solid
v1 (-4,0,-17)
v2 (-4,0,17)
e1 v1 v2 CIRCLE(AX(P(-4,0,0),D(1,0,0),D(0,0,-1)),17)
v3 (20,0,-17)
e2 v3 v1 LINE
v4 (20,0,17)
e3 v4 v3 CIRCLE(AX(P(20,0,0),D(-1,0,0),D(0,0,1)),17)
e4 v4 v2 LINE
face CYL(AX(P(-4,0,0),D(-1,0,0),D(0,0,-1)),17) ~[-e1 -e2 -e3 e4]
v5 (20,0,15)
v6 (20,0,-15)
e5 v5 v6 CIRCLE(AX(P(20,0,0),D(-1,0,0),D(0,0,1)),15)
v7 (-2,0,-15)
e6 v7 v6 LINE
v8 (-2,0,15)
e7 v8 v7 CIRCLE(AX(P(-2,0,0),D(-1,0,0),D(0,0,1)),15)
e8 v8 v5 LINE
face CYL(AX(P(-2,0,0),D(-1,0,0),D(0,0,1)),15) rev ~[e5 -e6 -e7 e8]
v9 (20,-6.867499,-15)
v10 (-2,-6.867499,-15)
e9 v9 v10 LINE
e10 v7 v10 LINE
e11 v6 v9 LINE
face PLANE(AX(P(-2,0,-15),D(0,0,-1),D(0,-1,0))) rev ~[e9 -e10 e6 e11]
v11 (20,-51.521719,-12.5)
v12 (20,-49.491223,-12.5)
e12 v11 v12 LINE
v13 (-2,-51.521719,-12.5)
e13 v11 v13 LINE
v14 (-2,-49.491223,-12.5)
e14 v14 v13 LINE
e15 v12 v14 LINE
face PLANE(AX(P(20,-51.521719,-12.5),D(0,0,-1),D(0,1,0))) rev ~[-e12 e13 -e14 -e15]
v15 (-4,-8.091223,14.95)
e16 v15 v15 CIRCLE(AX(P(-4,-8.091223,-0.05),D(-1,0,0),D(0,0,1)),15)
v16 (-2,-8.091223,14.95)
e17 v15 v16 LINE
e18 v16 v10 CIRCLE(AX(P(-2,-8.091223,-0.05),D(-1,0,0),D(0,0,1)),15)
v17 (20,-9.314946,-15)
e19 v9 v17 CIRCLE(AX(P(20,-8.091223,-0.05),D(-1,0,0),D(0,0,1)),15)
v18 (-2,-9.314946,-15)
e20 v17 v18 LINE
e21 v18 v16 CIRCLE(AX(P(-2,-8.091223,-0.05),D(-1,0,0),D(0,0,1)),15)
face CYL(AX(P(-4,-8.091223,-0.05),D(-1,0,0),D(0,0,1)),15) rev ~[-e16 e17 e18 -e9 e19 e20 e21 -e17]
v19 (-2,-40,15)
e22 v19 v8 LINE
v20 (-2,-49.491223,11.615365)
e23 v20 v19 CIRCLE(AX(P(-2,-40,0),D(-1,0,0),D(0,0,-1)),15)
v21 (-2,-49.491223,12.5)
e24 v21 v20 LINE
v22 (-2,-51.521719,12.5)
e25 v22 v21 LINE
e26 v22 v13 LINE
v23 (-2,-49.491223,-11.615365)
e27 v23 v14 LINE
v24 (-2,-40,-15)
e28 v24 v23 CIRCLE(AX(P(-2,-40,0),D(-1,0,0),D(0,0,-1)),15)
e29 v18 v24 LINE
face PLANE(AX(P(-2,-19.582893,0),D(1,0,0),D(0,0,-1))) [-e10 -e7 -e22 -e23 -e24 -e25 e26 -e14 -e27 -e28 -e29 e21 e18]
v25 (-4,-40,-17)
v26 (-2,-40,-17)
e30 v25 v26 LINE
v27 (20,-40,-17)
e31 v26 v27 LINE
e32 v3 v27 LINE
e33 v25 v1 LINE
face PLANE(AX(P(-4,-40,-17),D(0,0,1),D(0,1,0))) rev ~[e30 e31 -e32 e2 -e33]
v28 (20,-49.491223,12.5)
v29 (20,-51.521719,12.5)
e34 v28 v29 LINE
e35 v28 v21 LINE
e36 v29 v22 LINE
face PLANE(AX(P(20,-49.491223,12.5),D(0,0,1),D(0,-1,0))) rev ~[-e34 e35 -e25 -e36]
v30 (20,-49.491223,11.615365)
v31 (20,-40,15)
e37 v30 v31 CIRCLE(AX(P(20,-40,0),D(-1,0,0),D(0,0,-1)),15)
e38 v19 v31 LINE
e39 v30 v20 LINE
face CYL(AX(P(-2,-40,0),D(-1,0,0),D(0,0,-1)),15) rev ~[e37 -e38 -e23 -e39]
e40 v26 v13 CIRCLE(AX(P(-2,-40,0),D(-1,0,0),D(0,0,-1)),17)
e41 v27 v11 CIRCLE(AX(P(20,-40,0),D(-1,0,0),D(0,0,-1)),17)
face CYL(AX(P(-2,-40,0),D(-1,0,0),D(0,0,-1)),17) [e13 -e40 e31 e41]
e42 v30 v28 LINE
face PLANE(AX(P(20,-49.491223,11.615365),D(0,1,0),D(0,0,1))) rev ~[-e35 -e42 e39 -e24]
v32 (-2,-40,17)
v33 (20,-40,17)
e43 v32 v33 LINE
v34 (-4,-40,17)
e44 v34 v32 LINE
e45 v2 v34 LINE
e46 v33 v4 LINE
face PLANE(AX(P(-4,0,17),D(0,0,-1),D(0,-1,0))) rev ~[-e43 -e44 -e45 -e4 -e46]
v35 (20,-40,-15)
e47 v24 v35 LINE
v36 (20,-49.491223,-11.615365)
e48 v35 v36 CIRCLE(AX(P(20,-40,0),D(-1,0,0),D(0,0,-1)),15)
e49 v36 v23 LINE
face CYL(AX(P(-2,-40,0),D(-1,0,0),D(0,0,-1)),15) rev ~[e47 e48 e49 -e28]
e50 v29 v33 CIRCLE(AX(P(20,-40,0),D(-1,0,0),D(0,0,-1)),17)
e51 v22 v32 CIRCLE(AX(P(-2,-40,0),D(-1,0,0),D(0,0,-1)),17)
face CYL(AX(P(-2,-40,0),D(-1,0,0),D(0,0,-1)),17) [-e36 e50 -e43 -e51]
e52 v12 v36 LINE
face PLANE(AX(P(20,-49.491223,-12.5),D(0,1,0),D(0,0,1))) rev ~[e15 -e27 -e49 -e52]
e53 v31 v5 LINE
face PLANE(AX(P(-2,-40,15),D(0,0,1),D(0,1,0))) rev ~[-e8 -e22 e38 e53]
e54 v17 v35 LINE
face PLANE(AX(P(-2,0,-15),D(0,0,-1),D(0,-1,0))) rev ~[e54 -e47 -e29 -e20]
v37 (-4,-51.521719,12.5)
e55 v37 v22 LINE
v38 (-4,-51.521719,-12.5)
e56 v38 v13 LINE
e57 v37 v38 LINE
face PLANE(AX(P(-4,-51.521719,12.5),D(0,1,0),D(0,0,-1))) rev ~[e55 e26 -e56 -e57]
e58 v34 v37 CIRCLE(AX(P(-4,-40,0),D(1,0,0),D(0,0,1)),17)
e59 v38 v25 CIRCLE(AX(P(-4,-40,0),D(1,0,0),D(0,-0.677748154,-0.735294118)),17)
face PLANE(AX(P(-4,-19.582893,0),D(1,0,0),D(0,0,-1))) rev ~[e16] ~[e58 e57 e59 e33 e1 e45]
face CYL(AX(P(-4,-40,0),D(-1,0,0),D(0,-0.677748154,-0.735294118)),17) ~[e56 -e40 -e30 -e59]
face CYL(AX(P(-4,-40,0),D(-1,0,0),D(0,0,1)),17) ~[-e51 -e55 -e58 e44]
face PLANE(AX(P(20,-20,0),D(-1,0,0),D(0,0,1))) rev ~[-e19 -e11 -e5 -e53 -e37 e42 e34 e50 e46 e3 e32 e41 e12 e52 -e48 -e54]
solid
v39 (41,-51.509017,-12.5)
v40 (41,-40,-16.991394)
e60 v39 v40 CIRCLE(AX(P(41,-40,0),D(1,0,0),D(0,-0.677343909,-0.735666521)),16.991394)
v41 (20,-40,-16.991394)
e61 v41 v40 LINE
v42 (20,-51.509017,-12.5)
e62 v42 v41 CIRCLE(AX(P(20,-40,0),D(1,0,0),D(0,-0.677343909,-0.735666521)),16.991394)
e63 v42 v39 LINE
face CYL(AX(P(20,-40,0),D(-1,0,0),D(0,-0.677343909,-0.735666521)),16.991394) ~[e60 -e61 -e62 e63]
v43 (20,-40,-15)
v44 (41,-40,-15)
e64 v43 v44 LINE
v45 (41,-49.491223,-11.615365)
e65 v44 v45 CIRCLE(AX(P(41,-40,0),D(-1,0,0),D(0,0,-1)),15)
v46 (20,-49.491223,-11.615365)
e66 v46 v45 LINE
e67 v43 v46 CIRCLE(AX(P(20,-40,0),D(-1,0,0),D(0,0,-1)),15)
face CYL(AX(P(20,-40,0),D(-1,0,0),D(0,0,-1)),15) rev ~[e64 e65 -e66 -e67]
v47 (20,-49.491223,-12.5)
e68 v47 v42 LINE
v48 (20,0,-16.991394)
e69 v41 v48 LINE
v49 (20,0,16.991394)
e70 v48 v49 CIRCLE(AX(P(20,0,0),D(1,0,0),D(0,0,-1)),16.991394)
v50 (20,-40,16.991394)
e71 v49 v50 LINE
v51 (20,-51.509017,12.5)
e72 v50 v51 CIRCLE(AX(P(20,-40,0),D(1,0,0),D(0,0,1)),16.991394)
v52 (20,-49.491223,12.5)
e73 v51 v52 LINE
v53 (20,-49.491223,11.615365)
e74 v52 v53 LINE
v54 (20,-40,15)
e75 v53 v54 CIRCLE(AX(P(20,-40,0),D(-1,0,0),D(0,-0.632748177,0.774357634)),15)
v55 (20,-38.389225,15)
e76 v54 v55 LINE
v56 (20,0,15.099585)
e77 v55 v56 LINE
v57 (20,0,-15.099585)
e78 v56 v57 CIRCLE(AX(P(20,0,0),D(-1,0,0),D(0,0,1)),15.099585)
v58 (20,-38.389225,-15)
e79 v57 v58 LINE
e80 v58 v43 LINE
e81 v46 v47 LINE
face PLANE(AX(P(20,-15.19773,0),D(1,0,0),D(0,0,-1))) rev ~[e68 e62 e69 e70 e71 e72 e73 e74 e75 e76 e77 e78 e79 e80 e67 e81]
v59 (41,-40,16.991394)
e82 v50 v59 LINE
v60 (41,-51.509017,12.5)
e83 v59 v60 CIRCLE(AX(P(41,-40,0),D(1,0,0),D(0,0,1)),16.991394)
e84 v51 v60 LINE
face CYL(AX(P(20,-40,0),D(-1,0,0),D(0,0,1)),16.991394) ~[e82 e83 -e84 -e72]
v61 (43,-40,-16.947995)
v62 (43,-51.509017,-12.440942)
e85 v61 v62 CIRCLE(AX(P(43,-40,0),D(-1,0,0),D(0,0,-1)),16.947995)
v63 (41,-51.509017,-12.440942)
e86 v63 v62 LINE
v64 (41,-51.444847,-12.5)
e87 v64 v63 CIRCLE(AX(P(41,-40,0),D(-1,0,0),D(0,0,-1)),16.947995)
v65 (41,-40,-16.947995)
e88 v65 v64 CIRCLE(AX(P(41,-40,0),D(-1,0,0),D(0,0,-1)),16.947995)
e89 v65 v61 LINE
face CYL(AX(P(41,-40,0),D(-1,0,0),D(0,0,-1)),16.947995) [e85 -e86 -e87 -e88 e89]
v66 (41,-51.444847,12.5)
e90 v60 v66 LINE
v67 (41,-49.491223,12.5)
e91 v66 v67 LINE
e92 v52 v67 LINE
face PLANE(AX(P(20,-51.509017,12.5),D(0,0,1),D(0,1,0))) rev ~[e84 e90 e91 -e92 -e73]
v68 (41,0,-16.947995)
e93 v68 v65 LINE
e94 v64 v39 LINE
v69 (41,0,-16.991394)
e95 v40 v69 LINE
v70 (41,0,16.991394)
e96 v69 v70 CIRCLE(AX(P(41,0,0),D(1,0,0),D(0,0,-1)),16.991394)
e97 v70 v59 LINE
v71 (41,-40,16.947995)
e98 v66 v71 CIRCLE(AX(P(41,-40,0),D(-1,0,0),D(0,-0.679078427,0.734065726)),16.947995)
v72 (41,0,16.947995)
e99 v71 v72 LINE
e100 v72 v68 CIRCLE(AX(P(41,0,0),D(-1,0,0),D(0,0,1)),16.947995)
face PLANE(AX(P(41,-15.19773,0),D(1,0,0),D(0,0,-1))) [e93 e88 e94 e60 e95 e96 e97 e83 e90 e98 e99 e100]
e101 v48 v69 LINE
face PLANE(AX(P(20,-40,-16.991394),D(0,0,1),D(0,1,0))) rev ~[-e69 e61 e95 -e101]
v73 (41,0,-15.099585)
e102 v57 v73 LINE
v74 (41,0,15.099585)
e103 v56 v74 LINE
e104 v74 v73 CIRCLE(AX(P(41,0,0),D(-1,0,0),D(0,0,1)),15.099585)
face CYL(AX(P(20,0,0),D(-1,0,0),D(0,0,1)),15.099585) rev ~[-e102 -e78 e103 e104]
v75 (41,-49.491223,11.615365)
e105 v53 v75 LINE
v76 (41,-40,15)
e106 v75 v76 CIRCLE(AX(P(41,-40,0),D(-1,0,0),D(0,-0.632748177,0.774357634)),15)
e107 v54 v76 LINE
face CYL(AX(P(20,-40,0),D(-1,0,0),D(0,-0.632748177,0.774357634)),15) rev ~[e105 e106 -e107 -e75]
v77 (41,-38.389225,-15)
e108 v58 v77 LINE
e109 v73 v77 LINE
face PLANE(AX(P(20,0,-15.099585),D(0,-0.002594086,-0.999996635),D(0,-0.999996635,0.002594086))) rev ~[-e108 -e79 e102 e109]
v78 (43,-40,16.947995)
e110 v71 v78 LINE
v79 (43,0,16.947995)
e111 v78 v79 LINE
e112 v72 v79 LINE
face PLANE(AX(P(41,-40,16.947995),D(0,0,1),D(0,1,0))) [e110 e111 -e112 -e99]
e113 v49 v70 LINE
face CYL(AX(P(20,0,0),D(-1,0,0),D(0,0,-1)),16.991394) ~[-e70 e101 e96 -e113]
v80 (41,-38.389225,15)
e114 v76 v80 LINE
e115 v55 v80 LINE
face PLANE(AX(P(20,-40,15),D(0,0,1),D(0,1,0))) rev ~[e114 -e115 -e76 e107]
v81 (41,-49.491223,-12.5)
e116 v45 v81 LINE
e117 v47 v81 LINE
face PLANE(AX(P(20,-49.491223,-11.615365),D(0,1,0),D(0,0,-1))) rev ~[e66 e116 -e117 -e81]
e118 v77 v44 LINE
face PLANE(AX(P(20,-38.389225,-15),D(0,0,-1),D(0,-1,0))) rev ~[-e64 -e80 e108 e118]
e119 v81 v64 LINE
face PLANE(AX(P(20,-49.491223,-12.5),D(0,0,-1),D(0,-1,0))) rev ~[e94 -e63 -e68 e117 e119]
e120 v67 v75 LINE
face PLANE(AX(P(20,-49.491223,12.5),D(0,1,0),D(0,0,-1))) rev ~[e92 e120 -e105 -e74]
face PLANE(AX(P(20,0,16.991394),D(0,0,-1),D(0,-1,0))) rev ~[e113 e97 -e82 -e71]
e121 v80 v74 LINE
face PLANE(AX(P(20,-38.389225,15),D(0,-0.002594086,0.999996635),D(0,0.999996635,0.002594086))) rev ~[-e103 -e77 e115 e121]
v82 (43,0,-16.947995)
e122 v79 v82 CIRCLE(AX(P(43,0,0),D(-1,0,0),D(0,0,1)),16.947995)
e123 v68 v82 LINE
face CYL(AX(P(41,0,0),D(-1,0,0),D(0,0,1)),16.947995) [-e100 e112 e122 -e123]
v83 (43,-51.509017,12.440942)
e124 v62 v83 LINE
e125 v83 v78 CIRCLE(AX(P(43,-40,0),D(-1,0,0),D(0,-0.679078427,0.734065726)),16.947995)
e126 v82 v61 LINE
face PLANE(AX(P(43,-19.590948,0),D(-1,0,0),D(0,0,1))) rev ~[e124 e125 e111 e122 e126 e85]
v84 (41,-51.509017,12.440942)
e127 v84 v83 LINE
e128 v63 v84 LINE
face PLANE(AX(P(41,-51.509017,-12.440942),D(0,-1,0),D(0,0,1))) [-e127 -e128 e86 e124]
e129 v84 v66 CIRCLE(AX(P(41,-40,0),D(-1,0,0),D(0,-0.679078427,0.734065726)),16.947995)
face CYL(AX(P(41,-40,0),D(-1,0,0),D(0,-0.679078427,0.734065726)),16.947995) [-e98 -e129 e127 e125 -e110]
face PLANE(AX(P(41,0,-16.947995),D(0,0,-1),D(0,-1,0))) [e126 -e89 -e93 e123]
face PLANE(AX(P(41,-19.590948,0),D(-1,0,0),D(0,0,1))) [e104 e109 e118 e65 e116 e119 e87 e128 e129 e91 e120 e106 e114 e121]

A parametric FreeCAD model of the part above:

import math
import FreeCAD as App
import Part
import Sketcher

V = App.Vector

doc = App.newDocument("Part")
body = doc.addObject("PartDesign::Body", "Body")

sketch1 = body.newObject("Sketcher::SketchObject", "Sketch")
sketch1.AttachmentSupport = (doc.getObject("YZ_Plane"), [""])
sketch1.MapMode = "FlatFace"
sketch1.addGeometry([
    Part.LineSegment(V(-40, -17, 0), V(0, -17, 0)),
    Part.ArcOfCircle(Part.Circle(V(0, 0, 0), V(0, 0, 1), 17), math.radians(-90), math.radians(90)),
    Part.LineSegment(V(0, 17, 0), V(-40, 17, 0)),
    Part.ArcOfCircle(Part.Circle(V(-40, 0, 0), V(0, 0, 1), 17), math.radians(90), math.radians(270)),
    Part.LineSegment(V(0, -15, 0), V(-40, -15, 0)),
    Part.ArcOfCircle(Part.Circle(V(-40, 0, 0), V(0, 0, 1), 15), math.radians(90), math.radians(270)),
    Part.LineSegment(V(-40, 15, 0), V(0, 15, 0)),
    Part.ArcOfCircle(Part.Circle(V(0, 0, 0), V(0, 0, 1), 15), math.radians(-90), math.radians(90)),
], False)
sketch1.addConstraint([
    Sketcher.Constraint("Tangent", 0, 2, 1, 1),
    Sketcher.Constraint("Tangent", 1, 2, 2, 1),
    Sketcher.Constraint("Tangent", 2, 2, 3, 1),
    Sketcher.Constraint("Tangent", 3, 2, 0, 1),
    Sketcher.Constraint("Tangent", 4, 2, 5, 2),
    Sketcher.Constraint("Tangent", 5, 1, 6, 1),
    Sketcher.Constraint("Tangent", 6, 2, 7, 2),
    Sketcher.Constraint("Tangent", 7, 1, 4, 1),
    Sketcher.Constraint("Horizontal", 0),
    Sketcher.Constraint("Horizontal", 2),
    Sketcher.Constraint("Horizontal", 4),
    Sketcher.Constraint("Horizontal", 6),
    Sketcher.Constraint("Coincident", 1, 3, -1, 1),
    Sketcher.Constraint("Coincident", 7, 3, -1, 1),
    Sketcher.Constraint("Vertical", 5, 3, 2, 2),
    Sketcher.Constraint("Radius", 1, 17.0),
    Sketcher.Constraint("Radius", 5, 15.0),
    Sketcher.Constraint("DistanceX", 0, 1, 0, 2, 40.0),
])
pad1 = body.newObject("PartDesign::Pad", "Pad")
pad1.Profile = sketch1
pad1.Type = "TwoLengths"
pad1.Length = 20
pad1.Length2 = 2

sketch2 = body.newObject("Sketcher::SketchObject", "Sketch001")
sketch2.AttachmentSupport = (doc.getObject("YZ_Plane"), [""])
sketch2.MapMode = "FlatFace"
sketch2.AttachmentOffset = App.Placement(V(0, 0, 20), App.Rotation())
sketch2.addGeometry([
    Part.ArcOfCircle(Part.Circle(V(-40, 0, 0), V(0, 0, 1), 15), math.radians(129.25), math.radians(140)),
    Part.LineSegment(V(-49.5, 11.6, 0), V(-49.5, 12.5, 0)),
    Part.LineSegment(V(-49.5, 12.5, 0), V(-51.5, 12.5, 0)),
    Part.ArcOfCircle(Part.Circle(V(-40, 0, 0), V(0, 0, 1), 17), math.radians(133), math.radians(227)),
    Part.LineSegment(V(-51.5, -12.5, 0), V(-49.5, -12.5, 0)),
    Part.LineSegment(V(-49.5, -12.5, 0), V(-49.5, -11.6, 0)),
    Part.ArcOfCircle(Part.Circle(V(-40, 0, 0), V(0, 0, 1), 15), math.radians(140), math.radians(231)),
], False)
sketch2.addConstraint([
    Sketcher.Constraint("Coincident", 0, 1, 1, 1),
    Sketcher.Constraint("Coincident", 1, 2, 2, 1),
    Sketcher.Constraint("Coincident", 2, 2, 3, 1),
    Sketcher.Constraint("Coincident", 3, 2, 4, 1),
    Sketcher.Constraint("Coincident", 4, 2, 5, 1),
    Sketcher.Constraint("Coincident", 5, 2, 6, 2),
    Sketcher.Constraint("Tangent", 6, 1, 0, 2),
    Sketcher.Constraint("Vertical", 1),
    Sketcher.Constraint("Horizontal", 2),
    Sketcher.Constraint("Horizontal", 4),
    Sketcher.Constraint("Vertical", 5),
    Sketcher.Constraint("Coincident", 3, 3, 0, 3),
    Sketcher.Constraint("Equal", 0, 6),
    Sketcher.Constraint("Symmetric", 2, 2, 3, 2, -1),
    Sketcher.Constraint("Vertical", 1, 2, 4, 2),
    Sketcher.Constraint("Radius", 0, 15.0),
    Sketcher.Constraint("Radius", 3, 17.0),
    Sketcher.Constraint("DistanceX", 0, 3, -1, 1, 40.0),
    Sketcher.Constraint("DistanceY", 3, 2, 2, 2, 25.0),
    Sketcher.Constraint("DistanceX", 6, 1, 0, 1, 2.0),
    Sketcher.Constraint("DistanceX", 2, 2, 2, 1, 2.030496),
])
pocket1 = body.newObject("PartDesign::Pocket", "Pocket")
pocket1.Profile = sketch2
pocket1.Type = "ThroughAll"

sketch3 = body.newObject("Sketcher::SketchObject", "Sketch002")
sketch3.AttachmentSupport = (doc.getObject("YZ_Plane"), [""])
sketch3.MapMode = "FlatFace"
sketch3.AttachmentOffset = App.Placement(V(0, 0, -4), App.Rotation())
sketch3.addGeometry([
    Part.LineSegment(V(-40, 17, 0), V(0, 17, 0)),
    Part.ArcOfCircle(Part.Circle(V(0, 0, 0), V(0, 0, 1), 17), math.radians(-90), math.radians(90)),
    Part.LineSegment(V(0, -17, 0), V(-40, -17, 0)),
    Part.ArcOfCircle(Part.Circle(V(-40, 0, 0), V(0, 0, 1), 17), math.radians(-133), math.radians(-90)),
    Part.LineSegment(V(-52, -12, 0), V(-52, 12, 0)),
    Part.ArcOfCircle(Part.Circle(V(-40, 0, 0), V(0, 0, 1), 17), math.radians(90), math.radians(133)),
], False)
sketch3.addConstraint([
    Sketcher.Constraint("Tangent", 0, 2, 1, 2),
    Sketcher.Constraint("Tangent", 1, 1, 2, 1),
    Sketcher.Constraint("Tangent", 2, 2, 3, 2),
    Sketcher.Constraint("Coincident", 3, 1, 4, 1),
    Sketcher.Constraint("Coincident", 4, 2, 5, 2),
    Sketcher.Constraint("Tangent", 5, 1, 0, 1),
    Sketcher.Constraint("Horizontal", 0),
    Sketcher.Constraint("Horizontal", 2),
    Sketcher.Constraint("Vertical", 4),
    Sketcher.Constraint("Coincident", 1, 3, -1, 1),
    Sketcher.Constraint("Coincident", 5, 3, 3, 3),
    Sketcher.Constraint("Equal", 1, 3),
    Sketcher.Constraint("Radius", 1, 17.0),
    Sketcher.Constraint("DistanceX", 0, 1, 0, 2, 40.0),
    Sketcher.Constraint("DistanceY", 4, 1, 4, 2, 25.0),
])
pad2 = body.newObject("PartDesign::Pad", "Pad001")
pad2.Profile = sketch3
pad2.Length = 2

sketch4 = body.newObject("Sketcher::SketchObject", "Sketch003")
sketch4.AttachmentSupport = (doc.getObject("YZ_Plane"), [""])
sketch4.MapMode = "FlatFace"
sketch4.AttachmentOffset = App.Placement(V(0, 0, -4), App.Rotation())
sketch4.addGeometry(Part.Circle(V(-8, 0, 0), V(0, 0, 1), 15), False)
sketch4.addConstraint([
    Sketcher.Constraint("Diameter", 0, 30.0),
    Sketcher.Constraint("DistanceY", 0, 3, -1, 1, 0.05),
    Sketcher.Constraint("DistanceX", 0, 3, -1, 1, 8.091223),
])
pocket2 = body.newObject("PartDesign::Pocket", "Pocket001")
pocket2.Profile = sketch4
pocket2.Type = "ThroughAll"
pocket2.Reversed = True
body2 = doc.addObject("PartDesign::Body", "Body001")

sketch5 = body2.newObject("Sketcher::SketchObject", "Sketch004")
sketch5.AttachmentSupport = (doc.getObject("YZ_Plane001"), [""])
sketch5.MapMode = "FlatFace"
sketch5.AttachmentOffset = App.Placement(V(0, 0, 20), App.Rotation())
sketch5.addGeometry([
    Part.LineSegment(V(-51.5, 12.5, 0), V(-49.5, 12.5, 0)),
    Part.LineSegment(V(-49.5, 12.5, 0), V(-49.5, 11.6, 0)),
    Part.ArcOfCircle(Part.Circle(V(-40, 0, 0), V(0, 0, 1), 15), math.radians(90), math.radians(129)),
    Part.LineSegment(V(-40, 15, 0), V(-38.4, 15, 0)),
    Part.LineSegment(V(-38.4, 15, 0), V(0, 15.1, 0)),
    Part.ArcOfCircle(Part.Circle(V(0, 0, 0), V(0, 0, 1), 15.1), math.radians(-90), math.radians(90)),
    Part.LineSegment(V(0, -15.1, 0), V(-38.4, -15, 0)),
    Part.LineSegment(V(-38.4, -15, 0), V(-40, -15, 0)),
    Part.ArcOfCircle(Part.Circle(V(-40, 0, 0), V(0, 0, 1), 15), math.radians(-129), math.radians(-90)),
    Part.LineSegment(V(-49.5, -11.6, 0), V(-49.5, -12.5, 0)),
    Part.LineSegment(V(-49.5, -12.5, 0), V(-51.5, -12.5, 0)),
    Part.ArcOfCircle(Part.Circle(V(-40, 0, 0), V(0, 0, 1), 17), math.radians(-133), math.radians(-90)),
    Part.LineSegment(V(-40, -17, 0), V(0, -17, 0)),
    Part.ArcOfCircle(Part.Circle(V(0, 0, 0), V(0, 0, 1), 17), math.radians(-90), math.radians(90)),
    Part.LineSegment(V(0, 17, 0), V(-40, 17, 0)),
    Part.ArcOfCircle(Part.Circle(V(-40, 0, 0), V(0, 0, 1), 17), math.radians(90), math.radians(133)),
], False)
sketch5.addConstraint([
    Sketcher.Constraint("Coincident", 0, 2, 1, 1),
    Sketcher.Constraint("Coincident", 1, 2, 2, 2),
    Sketcher.Constraint("Tangent", 2, 1, 3, 1),
    Sketcher.Constraint("Coincident", 3, 2, 4, 1),
    Sketcher.Constraint("Coincident", 4, 2, 5, 2),
    Sketcher.Constraint("Coincident", 5, 1, 6, 1),
    Sketcher.Constraint("Coincident", 6, 2, 7, 1),
    Sketcher.Constraint("Tangent", 7, 2, 8, 2),
    Sketcher.Constraint("Coincident", 8, 1, 9, 1),
    Sketcher.Constraint("Coincident", 9, 2, 10, 1),
    Sketcher.Constraint("Coincident", 10, 2, 11, 1),
    Sketcher.Constraint("Tangent", 11, 2, 12, 1),
    Sketcher.Constraint("Tangent", 12, 2, 13, 1),
    Sketcher.Constraint("Tangent", 13, 2, 14, 1),
    Sketcher.Constraint("Tangent", 14, 2, 15, 1),
    Sketcher.Constraint("Coincident", 15, 2, 0, 1),
    Sketcher.Constraint("Horizontal", 0),
    Sketcher.Constraint("Vertical", 1),
    Sketcher.Constraint("Horizontal", 3),
    Sketcher.Constraint("Horizontal", 7),
    Sketcher.Constraint("Vertical", 9),
    Sketcher.Constraint("Horizontal", 10),
    Sketcher.Constraint("Horizontal", 12),
    Sketcher.Constraint("Horizontal", 14),
    Sketcher.Constraint("Coincident", 5, 3, -1, 1),
    Sketcher.Constraint("Coincident", 13, 3, -1, 1),
    Sketcher.Constraint("Coincident", 8, 3, 2, 3),
    Sketcher.Constraint("Coincident", 11, 3, 2, 3),
    Sketcher.Constraint("Coincident", 15, 3, 2, 3),
    Sketcher.Constraint("Equal", 2, 8),
    Sketcher.Constraint("Equal", 11, 13),
    Sketcher.Constraint("Symmetric", 0, 2, 9, 2, -1),
    Sketcher.Constraint("PointOnObject", 4, 2, -2),
    Sketcher.Constraint("PointOnObject", 5, 1, -2),
    Sketcher.Constraint("Vertical", 3, 2, 6, 2),
    Sketcher.Constraint("Radius", 2, 15.0),
    Sketcher.Constraint("DistanceX", 12, 1, 12, 2, 40.0),
    Sketcher.Constraint("DistanceY", -1, 1, 0, 2, 12.5),
    Sketcher.Constraint("Radius", 5, 15.099585),
    Sketcher.Constraint("Radius", 11, 16.991394),
    Sketcher.Constraint("DistanceX", 0, 1, 0, 2, 2.017795),
    Sketcher.Constraint("DistanceX", 3, 1, 3, 2, 1.610775),
])
pad3 = body2.newObject("PartDesign::Pad", "Pad002")
pad3.Profile = sketch5
pad3.Length = 21

sketch6 = body2.newObject("Sketcher::SketchObject", "Sketch005")
sketch6.AttachmentSupport = (doc.getObject("YZ_Plane001"), [""])
sketch6.MapMode = "FlatFace"
sketch6.AttachmentOffset = App.Placement(V(0, 0, 41), App.Rotation())
sketch6.addGeometry([
    Part.LineSegment(V(0, 17, 0), V(-40, 17, 0)),
    Part.ArcOfCircle(Part.Circle(V(-40, 0, 0), V(0, 0, 1), 17), math.radians(90), math.radians(133)),
    Part.LineSegment(V(-52, 12, 0), V(-52, -12, 0)),
    Part.ArcOfCircle(Part.Circle(V(-40, 0, 0), V(0, 0, 1), 17), math.radians(-133), math.radians(-90)),
    Part.LineSegment(V(-40, -17, 0), V(0, -17, 0)),
    Part.ArcOfCircle(Part.Circle(V(0, 0, 0), V(0, 0, 1), 17), math.radians(-90), math.radians(90)),
], False)
sketch6.addConstraint([
    Sketcher.Constraint("Tangent", 0, 2, 1, 1),
    Sketcher.Constraint("Coincident", 1, 2, 2, 1),
    Sketcher.Constraint("Coincident", 2, 2, 3, 1),
    Sketcher.Constraint("Tangent", 3, 2, 4, 1),
    Sketcher.Constraint("Tangent", 4, 2, 5, 1),
    Sketcher.Constraint("Tangent", 5, 2, 0, 1),
    Sketcher.Constraint("Horizontal", 0),
    Sketcher.Constraint("Vertical", 2),
    Sketcher.Constraint("Horizontal", 4),
    Sketcher.Constraint("Coincident", 5, 3, -1, 1),
    Sketcher.Constraint("Coincident", 3, 3, 1, 3),
    Sketcher.Constraint("Equal", 1, 3),
    Sketcher.Constraint("DistanceX", 0, 2, 0, 1, 40.0),
    Sketcher.Constraint("Radius", 1, 16.947995),
    Sketcher.Constraint("DistanceY", 2, 2, 2, 1, 24.881884),
])
pad4 = body2.newObject("PartDesign::Pad", "Pad003")
pad4.Profile = sketch6
pad4.Length = 2

doc.recompute()
